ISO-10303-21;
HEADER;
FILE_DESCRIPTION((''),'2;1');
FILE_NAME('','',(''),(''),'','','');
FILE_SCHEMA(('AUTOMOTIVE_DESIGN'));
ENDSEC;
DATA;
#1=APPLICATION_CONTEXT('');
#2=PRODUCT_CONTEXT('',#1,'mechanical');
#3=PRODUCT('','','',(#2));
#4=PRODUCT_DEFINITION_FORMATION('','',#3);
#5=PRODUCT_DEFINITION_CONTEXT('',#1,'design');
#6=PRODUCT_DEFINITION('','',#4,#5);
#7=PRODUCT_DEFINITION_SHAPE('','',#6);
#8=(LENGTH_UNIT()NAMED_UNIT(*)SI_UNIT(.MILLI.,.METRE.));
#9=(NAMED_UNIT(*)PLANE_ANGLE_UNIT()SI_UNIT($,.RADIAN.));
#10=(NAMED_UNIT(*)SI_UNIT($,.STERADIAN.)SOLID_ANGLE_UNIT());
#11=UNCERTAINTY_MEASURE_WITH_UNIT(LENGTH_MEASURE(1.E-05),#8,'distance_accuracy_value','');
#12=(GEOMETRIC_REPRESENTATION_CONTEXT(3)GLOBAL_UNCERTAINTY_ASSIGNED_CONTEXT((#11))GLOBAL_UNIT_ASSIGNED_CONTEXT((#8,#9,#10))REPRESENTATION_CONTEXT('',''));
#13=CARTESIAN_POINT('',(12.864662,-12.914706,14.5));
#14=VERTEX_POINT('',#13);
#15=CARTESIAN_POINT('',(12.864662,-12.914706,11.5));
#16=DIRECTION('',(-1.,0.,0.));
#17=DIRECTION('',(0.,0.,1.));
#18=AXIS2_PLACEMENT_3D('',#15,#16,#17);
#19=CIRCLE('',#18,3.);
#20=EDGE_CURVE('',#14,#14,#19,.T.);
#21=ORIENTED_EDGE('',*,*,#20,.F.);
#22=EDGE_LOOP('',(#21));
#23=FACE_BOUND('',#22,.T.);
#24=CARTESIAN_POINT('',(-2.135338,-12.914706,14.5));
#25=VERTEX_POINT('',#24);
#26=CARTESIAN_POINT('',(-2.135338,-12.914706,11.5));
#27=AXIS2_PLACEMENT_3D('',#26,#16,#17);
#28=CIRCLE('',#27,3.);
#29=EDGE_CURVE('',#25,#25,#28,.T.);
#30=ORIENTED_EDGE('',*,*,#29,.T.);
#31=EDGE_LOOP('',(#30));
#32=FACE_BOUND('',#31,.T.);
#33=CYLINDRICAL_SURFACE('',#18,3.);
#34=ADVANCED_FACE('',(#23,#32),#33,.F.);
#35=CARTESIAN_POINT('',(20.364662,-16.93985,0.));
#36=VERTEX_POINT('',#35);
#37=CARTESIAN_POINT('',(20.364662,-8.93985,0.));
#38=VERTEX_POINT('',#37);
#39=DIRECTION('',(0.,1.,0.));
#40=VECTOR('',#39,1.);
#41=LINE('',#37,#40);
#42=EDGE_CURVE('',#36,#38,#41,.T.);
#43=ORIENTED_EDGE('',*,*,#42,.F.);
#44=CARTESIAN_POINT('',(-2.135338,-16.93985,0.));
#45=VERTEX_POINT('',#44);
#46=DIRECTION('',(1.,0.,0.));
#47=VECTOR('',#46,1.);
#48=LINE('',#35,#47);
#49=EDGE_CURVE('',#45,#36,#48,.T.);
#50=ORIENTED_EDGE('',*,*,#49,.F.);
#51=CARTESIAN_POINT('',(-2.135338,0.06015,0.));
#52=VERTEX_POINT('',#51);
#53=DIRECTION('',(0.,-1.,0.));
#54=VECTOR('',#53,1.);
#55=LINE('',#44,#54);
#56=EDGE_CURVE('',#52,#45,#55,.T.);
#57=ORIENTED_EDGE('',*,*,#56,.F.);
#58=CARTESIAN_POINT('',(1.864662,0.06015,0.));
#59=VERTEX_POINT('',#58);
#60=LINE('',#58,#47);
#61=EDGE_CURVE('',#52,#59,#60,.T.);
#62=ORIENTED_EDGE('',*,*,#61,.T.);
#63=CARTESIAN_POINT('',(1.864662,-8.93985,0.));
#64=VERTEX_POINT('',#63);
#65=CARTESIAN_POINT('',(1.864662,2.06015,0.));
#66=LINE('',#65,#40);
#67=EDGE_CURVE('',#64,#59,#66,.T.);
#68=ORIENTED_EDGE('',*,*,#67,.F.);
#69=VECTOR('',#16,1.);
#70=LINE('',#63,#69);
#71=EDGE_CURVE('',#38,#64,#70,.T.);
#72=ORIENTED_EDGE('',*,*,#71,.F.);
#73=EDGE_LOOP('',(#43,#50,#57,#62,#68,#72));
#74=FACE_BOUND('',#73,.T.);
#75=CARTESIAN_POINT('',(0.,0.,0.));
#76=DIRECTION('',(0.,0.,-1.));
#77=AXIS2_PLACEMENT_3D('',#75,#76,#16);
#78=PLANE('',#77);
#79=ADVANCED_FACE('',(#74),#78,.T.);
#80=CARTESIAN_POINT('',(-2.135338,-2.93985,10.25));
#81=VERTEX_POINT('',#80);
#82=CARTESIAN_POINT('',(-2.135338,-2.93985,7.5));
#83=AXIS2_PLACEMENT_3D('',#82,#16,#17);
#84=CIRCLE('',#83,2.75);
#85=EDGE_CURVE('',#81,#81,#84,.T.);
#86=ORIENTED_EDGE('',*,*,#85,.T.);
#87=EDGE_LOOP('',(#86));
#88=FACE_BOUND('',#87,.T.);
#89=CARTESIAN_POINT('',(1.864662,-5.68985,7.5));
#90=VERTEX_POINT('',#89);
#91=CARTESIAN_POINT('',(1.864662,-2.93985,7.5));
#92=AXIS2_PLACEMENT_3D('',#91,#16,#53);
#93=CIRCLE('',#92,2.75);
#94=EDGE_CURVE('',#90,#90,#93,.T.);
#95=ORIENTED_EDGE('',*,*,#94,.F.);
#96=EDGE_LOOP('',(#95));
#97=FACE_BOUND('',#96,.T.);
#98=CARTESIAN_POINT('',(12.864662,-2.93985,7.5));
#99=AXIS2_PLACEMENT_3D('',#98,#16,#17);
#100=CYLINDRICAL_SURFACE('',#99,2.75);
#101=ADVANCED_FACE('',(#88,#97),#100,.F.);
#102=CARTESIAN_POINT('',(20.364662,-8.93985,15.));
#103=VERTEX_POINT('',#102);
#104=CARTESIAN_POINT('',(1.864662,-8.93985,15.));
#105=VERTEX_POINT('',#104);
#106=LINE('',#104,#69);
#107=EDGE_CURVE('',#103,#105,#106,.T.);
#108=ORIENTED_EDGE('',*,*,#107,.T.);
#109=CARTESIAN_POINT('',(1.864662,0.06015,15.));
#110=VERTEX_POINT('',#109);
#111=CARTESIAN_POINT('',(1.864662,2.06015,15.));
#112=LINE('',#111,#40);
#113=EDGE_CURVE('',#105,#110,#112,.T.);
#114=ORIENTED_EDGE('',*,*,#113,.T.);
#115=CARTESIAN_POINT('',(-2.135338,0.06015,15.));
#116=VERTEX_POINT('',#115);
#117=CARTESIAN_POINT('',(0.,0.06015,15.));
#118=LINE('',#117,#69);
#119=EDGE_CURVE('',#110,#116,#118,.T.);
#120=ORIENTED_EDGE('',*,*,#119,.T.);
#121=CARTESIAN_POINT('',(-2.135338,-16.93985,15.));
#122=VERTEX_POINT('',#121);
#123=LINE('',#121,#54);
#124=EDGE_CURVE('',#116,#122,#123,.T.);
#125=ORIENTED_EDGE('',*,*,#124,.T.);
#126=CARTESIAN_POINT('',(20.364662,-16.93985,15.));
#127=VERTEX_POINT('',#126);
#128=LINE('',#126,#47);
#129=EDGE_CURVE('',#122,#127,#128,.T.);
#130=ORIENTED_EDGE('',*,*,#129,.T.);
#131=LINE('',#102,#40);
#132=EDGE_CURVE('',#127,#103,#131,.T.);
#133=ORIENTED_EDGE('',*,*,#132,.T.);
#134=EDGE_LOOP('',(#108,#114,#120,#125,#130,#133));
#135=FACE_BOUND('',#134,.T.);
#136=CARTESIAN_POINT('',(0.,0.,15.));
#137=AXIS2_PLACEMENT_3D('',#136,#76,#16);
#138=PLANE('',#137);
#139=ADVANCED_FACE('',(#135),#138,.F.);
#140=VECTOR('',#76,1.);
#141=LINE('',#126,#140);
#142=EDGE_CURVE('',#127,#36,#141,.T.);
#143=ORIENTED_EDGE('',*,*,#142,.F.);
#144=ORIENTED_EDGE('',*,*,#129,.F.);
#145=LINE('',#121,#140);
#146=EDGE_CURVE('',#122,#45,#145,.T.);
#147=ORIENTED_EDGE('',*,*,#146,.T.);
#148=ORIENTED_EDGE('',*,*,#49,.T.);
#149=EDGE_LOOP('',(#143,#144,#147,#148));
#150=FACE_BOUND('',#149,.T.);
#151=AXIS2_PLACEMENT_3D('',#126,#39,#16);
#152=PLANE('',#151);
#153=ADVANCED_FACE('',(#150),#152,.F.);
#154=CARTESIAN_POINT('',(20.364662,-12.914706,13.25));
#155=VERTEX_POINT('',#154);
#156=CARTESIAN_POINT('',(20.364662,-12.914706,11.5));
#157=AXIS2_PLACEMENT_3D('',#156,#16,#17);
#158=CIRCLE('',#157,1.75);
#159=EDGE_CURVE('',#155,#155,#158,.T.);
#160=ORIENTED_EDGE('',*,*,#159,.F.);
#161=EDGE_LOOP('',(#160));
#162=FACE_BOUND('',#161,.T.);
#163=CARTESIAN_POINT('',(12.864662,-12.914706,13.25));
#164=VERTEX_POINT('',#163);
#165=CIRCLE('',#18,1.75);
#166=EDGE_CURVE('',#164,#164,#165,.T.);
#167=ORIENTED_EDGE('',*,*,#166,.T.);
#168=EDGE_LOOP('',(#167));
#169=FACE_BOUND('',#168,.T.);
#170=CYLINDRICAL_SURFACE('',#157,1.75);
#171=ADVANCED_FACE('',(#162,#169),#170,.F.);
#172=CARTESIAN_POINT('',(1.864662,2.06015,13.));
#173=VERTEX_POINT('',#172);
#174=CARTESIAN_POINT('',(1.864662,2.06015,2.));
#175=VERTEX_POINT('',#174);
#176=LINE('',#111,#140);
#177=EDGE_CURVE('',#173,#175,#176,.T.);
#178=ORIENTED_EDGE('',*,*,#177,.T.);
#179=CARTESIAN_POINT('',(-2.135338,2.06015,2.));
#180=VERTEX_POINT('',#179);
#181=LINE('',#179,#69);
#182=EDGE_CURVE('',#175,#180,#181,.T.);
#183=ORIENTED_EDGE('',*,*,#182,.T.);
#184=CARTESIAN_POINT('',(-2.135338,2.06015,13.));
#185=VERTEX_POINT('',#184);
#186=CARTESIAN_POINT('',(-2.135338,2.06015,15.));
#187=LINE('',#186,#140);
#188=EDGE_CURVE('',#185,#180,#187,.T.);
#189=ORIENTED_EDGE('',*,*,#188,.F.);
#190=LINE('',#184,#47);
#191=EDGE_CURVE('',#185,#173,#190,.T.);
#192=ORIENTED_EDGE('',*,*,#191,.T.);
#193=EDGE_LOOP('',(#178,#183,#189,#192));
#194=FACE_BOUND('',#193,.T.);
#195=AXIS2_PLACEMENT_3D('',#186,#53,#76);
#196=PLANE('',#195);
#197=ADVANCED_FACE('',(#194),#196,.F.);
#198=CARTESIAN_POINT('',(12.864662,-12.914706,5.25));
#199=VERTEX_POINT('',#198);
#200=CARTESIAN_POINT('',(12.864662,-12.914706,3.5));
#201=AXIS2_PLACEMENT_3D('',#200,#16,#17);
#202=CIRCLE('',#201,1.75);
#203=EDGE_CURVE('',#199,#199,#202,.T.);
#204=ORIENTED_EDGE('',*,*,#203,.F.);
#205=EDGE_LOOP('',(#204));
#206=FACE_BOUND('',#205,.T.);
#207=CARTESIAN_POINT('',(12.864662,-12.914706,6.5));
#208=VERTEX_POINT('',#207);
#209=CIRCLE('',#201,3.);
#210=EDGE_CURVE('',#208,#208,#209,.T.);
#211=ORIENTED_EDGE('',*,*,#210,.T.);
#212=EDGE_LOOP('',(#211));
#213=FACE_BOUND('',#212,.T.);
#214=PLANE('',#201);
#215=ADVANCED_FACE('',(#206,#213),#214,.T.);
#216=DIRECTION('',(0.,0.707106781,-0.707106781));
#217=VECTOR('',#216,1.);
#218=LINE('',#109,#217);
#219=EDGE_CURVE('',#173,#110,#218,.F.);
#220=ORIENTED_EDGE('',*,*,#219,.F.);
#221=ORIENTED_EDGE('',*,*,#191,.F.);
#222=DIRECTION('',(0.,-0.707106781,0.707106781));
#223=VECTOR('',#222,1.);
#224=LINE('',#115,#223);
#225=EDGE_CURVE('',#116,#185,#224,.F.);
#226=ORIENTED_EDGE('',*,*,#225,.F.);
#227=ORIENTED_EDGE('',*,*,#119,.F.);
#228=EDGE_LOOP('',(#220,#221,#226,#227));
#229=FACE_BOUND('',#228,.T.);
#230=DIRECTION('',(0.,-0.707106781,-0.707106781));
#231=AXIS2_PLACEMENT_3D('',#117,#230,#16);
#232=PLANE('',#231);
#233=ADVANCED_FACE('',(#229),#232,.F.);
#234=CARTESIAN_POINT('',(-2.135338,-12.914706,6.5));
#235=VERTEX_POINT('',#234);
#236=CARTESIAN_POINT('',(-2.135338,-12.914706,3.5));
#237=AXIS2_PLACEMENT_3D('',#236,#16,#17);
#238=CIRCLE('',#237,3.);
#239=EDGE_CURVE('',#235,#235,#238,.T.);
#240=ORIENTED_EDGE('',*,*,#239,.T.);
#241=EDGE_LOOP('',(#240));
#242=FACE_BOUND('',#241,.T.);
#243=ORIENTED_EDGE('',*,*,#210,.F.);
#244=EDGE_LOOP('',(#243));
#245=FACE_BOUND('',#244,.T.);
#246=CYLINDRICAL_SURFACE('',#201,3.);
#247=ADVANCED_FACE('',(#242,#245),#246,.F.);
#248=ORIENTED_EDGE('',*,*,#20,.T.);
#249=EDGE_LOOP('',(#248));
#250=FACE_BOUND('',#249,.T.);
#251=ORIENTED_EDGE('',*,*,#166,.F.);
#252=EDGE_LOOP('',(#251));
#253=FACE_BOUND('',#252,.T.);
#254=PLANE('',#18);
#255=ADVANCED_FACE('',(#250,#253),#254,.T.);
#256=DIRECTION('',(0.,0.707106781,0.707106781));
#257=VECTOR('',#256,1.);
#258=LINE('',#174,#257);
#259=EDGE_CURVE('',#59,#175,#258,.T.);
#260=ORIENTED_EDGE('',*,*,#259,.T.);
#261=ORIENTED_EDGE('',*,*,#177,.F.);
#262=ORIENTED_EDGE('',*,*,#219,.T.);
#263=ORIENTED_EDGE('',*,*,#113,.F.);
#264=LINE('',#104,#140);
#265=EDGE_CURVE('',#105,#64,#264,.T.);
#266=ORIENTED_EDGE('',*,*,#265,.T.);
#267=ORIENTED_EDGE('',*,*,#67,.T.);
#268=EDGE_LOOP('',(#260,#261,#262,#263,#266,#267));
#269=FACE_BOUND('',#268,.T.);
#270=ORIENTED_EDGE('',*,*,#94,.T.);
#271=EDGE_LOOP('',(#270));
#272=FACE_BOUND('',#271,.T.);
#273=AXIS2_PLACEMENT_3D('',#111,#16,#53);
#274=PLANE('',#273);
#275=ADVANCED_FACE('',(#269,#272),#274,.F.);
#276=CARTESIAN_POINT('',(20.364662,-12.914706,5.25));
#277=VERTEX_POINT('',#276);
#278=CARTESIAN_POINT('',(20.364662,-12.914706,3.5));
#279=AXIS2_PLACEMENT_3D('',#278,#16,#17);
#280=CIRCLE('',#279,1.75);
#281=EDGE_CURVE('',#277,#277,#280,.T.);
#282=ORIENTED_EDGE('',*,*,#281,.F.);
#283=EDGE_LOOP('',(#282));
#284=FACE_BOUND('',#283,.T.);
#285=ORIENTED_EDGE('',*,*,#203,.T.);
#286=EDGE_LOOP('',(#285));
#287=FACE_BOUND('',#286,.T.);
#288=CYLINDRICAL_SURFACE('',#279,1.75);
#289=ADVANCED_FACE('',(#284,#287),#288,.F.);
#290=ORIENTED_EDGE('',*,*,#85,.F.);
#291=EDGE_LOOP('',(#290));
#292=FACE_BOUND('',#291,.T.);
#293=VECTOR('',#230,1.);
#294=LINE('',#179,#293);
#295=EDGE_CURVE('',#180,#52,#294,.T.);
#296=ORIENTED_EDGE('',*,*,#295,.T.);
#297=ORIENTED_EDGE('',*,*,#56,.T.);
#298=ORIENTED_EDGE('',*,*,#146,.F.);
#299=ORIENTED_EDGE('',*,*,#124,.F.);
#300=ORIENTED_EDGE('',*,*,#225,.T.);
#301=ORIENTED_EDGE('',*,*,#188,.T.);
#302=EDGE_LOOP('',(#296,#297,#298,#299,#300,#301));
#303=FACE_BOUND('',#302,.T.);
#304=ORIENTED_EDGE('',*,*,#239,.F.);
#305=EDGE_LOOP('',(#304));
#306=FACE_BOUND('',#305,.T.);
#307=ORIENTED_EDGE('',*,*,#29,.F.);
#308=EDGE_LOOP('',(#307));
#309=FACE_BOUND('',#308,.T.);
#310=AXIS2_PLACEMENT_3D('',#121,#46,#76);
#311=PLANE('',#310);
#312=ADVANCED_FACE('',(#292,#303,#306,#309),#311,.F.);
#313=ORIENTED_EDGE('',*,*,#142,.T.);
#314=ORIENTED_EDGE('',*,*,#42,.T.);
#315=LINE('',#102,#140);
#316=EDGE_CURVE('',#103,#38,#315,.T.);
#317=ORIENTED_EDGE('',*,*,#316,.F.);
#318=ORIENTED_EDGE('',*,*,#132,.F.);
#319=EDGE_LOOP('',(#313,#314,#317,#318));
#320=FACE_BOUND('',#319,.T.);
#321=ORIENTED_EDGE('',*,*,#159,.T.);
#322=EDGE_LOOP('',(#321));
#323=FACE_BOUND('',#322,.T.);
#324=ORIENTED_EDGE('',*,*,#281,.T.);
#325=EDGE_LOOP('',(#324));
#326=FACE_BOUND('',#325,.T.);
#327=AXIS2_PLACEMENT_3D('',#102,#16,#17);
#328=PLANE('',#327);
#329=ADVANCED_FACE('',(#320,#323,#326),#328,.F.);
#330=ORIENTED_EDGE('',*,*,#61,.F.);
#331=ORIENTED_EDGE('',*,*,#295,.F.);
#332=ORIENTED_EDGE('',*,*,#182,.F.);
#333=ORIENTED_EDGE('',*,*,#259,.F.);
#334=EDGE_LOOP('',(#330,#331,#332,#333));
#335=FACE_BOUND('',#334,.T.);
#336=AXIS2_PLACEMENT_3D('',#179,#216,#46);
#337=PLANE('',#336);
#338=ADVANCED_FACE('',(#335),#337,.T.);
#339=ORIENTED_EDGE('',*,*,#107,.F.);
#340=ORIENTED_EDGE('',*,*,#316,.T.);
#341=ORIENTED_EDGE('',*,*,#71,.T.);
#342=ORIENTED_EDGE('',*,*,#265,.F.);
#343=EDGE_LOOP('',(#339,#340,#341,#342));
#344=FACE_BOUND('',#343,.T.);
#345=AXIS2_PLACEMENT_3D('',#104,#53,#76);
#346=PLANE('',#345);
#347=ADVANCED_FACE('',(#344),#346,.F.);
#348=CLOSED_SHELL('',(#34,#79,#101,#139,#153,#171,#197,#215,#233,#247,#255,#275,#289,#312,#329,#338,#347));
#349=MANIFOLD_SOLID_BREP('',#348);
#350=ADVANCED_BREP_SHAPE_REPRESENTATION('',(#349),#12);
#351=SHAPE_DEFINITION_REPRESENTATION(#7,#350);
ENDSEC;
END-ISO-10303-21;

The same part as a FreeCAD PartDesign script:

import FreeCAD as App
import Part
import Sketcher

V = App.Vector
Q = App.Units.Quantity


def edges_at(feature, points):
    """Names of the edges that pass closest to the given points."""
    edges = feature.Shape.Edges
    near = lambda p: min(range(len(edges)), key=lambda i: edges[i].distToShape(Part.Vertex(*p))[0])
    return sorted({f"Edge{near(p) + 1}" for p in points})

doc = App.newDocument("Part")
body = doc.addObject("PartDesign::Body", "Body")

# Sketch on XY plane
sketch1 = body.newObject("Sketcher::SketchObject", "Sketch")
sketch1.AttachmentSupport = (doc.getObject("XY_Plane"), [""])
sketch1.MapMode = "FlatFace"
sketch1.addGeometry([
    Part.LineSegment(V(1.9, 2.1, 0), V(-2.1, 2.1, 0)),  # 0
    Part.LineSegment(V(-2.1, 2.1, 0), V(-2.1, -16.9, 0)),  # 1
    Part.LineSegment(V(-2.1, -16.9, 0), V(20.4, -16.9, 0)),  # 2
    Part.LineSegment(V(20.4, -16.9, 0), V(20.4, -8.9, 0)),  # 3
    Part.LineSegment(V(20.4, -8.9, 0), V(1.9, -8.9, 0)),  # 4
    Part.LineSegment(V(1.9, -8.9, 0), V(1.9, 2.1, 0)),  # 5
], False)
sketch1.addConstraint([
    Sketcher.Constraint("Coincident", 0, 2, 1, 1),
    Sketcher.Constraint("Coincident", 1, 2, 2, 1),
    Sketcher.Constraint("Coincident", 2, 2, 3, 1),
    Sketcher.Constraint("Coincident", 3, 2, 4, 1),
    Sketcher.Constraint("Coincident", 4, 2, 5, 1),
    Sketcher.Constraint("Coincident", 5, 2, 0, 1),
    Sketcher.Constraint("Horizontal", 0),
    Sketcher.Constraint("Vertical", 1),
    Sketcher.Constraint("Horizontal", 2),
    Sketcher.Constraint("Vertical", 3),
    Sketcher.Constraint("Horizontal", 4),
    Sketcher.Constraint("Vertical", 5),
    Sketcher.Constraint("DistanceX", 0, 2, 0, 1, Q("4 mm")),
    Sketcher.Constraint("DistanceY", 1, 2, 1, 1, Q("19 mm")),
    Sketcher.Constraint("DistanceY", 3, 1, 3, 2, Q("8 mm")),
    Sketcher.Constraint("DistanceX", 2, 1, 2, 2, Q("22.5 mm")),
    Sketcher.Constraint("DistanceX", 0, 2, -1, 1, Q("2.135338 mm")),
    Sketcher.Constraint("DistanceY", -1, 1, 0, 2, Q("2.06015 mm")),
])
pad1 = body.newObject("PartDesign::Pad", "Pad")
pad1.Profile = sketch1
pad1.Length = 15

# Sketch on YZ plane
sketch2 = body.newObject("Sketcher::SketchObject", "Sketch001")
sketch2.AttachmentSupport = (doc.getObject("YZ_Plane"), [""])
sketch2.MapMode = "FlatFace"
sketch2.AttachmentOffset = App.Placement(V(0, 0, -2.135338), App.Rotation())
sketch2.addGeometry([
    Part.Circle(V(-2.9, 7.5, 0), V(0, 0, 1), 2.8),  # 0
    Part.Circle(V(-12.9, 11.5, 0), V(0, 0, 1), 3),  # 1
    Part.Circle(V(-12.9, 11.5, 0), V(0, 0, 1), 1.8),  # 2
    Part.Circle(V(-12.9, 3.5, 0), V(0, 0, 1), 3),  # 3
    Part.Circle(V(-12.9, 3.5, 0), V(0, 0, 1), 1.8),  # 4
], False)
sketch2.addConstraint([
    Sketcher.Constraint("Coincident", 2, 3, 1, 3),
    Sketcher.Constraint("Coincident", 4, 3, 3, 3),
    Sketcher.Constraint("Equal", 1, 3),
    Sketcher.Constraint("Equal", 2, 4),
    Sketcher.Constraint("Vertical", 2, 3, 3, 3),
    Sketcher.Constraint("Diameter", 1, Q("6 mm")),
    Sketcher.Constraint("Diameter", 0, Q("5.5 mm")),
    Sketcher.Constraint("Diameter", 2, Q("3.5 mm")),
    Sketcher.Constraint("DistanceY", 0, 3, 1, 3, Q("4 mm")),
    Sketcher.Constraint("DistanceY", 3, 3, 1, 3, Q("8 mm")),
    Sketcher.Constraint("DistanceY", -1, 1, 0, 3, Q("7.5 mm")),
    Sketcher.Constraint("DistanceX", 0, 3, -1, 1, Q("2.93985 mm")),
    Sketcher.Constraint("DistanceX", 1, 3, -1, 1, Q("12.914706 mm")),
])
pocket1 = body.newObject("PartDesign::Pocket", "Pocket")
pocket1.Profile = sketch2
pocket1.Length = 15
pocket1.Reversed = True

# Sketch on YZ plane
sketch3 = body.newObject("Sketcher::SketchObject", "Sketch002")
sketch3.AttachmentSupport = (doc.getObject("YZ_Plane"), [""])
sketch3.MapMode = "FlatFace"
sketch3.AttachmentOffset = App.Placement(V(0, 0, -2.135338), App.Rotation())
sketch3.addGeometry([
    Part.Circle(V(-12.9, 3.5, 0), V(0, 0, 1), 1.8),
    Part.Circle(V(-12.9, 11.5, 0), V(0, 0, 1), 1.8),
], False)
sketch3.addConstraint([
    Sketcher.Constraint("Equal", 0, 1),
    Sketcher.Constraint("Vertical", 0, 3, 1, 3),
    Sketcher.Constraint("Diameter", 0, Q("3.5 mm")),
    Sketcher.Constraint("DistanceY", 0, 3, 1, 3, Q("8 mm")),
    Sketcher.Constraint("DistanceY", -1, 1, 0, 3, Q("3.5 mm")),
    Sketcher.Constraint("DistanceX", 0, 3, -1, 1, Q("12.914706 mm")),
])
pocket2 = body.newObject("PartDesign::Pocket", "Pocket001")
pocket2.Profile = sketch3
pocket2.Type = "ThroughAll"
pocket2.Reversed = True
doc.recompute()

chamfer = body.newObject("PartDesign::Chamfer", "Chamfer")
chamfer.Base = (pocket2, edges_at(pocket2, [(-0.135, 2.06, 15), (-0.135, 2.06, 0)]))
chamfer.Size = 2

doc.recompute()
